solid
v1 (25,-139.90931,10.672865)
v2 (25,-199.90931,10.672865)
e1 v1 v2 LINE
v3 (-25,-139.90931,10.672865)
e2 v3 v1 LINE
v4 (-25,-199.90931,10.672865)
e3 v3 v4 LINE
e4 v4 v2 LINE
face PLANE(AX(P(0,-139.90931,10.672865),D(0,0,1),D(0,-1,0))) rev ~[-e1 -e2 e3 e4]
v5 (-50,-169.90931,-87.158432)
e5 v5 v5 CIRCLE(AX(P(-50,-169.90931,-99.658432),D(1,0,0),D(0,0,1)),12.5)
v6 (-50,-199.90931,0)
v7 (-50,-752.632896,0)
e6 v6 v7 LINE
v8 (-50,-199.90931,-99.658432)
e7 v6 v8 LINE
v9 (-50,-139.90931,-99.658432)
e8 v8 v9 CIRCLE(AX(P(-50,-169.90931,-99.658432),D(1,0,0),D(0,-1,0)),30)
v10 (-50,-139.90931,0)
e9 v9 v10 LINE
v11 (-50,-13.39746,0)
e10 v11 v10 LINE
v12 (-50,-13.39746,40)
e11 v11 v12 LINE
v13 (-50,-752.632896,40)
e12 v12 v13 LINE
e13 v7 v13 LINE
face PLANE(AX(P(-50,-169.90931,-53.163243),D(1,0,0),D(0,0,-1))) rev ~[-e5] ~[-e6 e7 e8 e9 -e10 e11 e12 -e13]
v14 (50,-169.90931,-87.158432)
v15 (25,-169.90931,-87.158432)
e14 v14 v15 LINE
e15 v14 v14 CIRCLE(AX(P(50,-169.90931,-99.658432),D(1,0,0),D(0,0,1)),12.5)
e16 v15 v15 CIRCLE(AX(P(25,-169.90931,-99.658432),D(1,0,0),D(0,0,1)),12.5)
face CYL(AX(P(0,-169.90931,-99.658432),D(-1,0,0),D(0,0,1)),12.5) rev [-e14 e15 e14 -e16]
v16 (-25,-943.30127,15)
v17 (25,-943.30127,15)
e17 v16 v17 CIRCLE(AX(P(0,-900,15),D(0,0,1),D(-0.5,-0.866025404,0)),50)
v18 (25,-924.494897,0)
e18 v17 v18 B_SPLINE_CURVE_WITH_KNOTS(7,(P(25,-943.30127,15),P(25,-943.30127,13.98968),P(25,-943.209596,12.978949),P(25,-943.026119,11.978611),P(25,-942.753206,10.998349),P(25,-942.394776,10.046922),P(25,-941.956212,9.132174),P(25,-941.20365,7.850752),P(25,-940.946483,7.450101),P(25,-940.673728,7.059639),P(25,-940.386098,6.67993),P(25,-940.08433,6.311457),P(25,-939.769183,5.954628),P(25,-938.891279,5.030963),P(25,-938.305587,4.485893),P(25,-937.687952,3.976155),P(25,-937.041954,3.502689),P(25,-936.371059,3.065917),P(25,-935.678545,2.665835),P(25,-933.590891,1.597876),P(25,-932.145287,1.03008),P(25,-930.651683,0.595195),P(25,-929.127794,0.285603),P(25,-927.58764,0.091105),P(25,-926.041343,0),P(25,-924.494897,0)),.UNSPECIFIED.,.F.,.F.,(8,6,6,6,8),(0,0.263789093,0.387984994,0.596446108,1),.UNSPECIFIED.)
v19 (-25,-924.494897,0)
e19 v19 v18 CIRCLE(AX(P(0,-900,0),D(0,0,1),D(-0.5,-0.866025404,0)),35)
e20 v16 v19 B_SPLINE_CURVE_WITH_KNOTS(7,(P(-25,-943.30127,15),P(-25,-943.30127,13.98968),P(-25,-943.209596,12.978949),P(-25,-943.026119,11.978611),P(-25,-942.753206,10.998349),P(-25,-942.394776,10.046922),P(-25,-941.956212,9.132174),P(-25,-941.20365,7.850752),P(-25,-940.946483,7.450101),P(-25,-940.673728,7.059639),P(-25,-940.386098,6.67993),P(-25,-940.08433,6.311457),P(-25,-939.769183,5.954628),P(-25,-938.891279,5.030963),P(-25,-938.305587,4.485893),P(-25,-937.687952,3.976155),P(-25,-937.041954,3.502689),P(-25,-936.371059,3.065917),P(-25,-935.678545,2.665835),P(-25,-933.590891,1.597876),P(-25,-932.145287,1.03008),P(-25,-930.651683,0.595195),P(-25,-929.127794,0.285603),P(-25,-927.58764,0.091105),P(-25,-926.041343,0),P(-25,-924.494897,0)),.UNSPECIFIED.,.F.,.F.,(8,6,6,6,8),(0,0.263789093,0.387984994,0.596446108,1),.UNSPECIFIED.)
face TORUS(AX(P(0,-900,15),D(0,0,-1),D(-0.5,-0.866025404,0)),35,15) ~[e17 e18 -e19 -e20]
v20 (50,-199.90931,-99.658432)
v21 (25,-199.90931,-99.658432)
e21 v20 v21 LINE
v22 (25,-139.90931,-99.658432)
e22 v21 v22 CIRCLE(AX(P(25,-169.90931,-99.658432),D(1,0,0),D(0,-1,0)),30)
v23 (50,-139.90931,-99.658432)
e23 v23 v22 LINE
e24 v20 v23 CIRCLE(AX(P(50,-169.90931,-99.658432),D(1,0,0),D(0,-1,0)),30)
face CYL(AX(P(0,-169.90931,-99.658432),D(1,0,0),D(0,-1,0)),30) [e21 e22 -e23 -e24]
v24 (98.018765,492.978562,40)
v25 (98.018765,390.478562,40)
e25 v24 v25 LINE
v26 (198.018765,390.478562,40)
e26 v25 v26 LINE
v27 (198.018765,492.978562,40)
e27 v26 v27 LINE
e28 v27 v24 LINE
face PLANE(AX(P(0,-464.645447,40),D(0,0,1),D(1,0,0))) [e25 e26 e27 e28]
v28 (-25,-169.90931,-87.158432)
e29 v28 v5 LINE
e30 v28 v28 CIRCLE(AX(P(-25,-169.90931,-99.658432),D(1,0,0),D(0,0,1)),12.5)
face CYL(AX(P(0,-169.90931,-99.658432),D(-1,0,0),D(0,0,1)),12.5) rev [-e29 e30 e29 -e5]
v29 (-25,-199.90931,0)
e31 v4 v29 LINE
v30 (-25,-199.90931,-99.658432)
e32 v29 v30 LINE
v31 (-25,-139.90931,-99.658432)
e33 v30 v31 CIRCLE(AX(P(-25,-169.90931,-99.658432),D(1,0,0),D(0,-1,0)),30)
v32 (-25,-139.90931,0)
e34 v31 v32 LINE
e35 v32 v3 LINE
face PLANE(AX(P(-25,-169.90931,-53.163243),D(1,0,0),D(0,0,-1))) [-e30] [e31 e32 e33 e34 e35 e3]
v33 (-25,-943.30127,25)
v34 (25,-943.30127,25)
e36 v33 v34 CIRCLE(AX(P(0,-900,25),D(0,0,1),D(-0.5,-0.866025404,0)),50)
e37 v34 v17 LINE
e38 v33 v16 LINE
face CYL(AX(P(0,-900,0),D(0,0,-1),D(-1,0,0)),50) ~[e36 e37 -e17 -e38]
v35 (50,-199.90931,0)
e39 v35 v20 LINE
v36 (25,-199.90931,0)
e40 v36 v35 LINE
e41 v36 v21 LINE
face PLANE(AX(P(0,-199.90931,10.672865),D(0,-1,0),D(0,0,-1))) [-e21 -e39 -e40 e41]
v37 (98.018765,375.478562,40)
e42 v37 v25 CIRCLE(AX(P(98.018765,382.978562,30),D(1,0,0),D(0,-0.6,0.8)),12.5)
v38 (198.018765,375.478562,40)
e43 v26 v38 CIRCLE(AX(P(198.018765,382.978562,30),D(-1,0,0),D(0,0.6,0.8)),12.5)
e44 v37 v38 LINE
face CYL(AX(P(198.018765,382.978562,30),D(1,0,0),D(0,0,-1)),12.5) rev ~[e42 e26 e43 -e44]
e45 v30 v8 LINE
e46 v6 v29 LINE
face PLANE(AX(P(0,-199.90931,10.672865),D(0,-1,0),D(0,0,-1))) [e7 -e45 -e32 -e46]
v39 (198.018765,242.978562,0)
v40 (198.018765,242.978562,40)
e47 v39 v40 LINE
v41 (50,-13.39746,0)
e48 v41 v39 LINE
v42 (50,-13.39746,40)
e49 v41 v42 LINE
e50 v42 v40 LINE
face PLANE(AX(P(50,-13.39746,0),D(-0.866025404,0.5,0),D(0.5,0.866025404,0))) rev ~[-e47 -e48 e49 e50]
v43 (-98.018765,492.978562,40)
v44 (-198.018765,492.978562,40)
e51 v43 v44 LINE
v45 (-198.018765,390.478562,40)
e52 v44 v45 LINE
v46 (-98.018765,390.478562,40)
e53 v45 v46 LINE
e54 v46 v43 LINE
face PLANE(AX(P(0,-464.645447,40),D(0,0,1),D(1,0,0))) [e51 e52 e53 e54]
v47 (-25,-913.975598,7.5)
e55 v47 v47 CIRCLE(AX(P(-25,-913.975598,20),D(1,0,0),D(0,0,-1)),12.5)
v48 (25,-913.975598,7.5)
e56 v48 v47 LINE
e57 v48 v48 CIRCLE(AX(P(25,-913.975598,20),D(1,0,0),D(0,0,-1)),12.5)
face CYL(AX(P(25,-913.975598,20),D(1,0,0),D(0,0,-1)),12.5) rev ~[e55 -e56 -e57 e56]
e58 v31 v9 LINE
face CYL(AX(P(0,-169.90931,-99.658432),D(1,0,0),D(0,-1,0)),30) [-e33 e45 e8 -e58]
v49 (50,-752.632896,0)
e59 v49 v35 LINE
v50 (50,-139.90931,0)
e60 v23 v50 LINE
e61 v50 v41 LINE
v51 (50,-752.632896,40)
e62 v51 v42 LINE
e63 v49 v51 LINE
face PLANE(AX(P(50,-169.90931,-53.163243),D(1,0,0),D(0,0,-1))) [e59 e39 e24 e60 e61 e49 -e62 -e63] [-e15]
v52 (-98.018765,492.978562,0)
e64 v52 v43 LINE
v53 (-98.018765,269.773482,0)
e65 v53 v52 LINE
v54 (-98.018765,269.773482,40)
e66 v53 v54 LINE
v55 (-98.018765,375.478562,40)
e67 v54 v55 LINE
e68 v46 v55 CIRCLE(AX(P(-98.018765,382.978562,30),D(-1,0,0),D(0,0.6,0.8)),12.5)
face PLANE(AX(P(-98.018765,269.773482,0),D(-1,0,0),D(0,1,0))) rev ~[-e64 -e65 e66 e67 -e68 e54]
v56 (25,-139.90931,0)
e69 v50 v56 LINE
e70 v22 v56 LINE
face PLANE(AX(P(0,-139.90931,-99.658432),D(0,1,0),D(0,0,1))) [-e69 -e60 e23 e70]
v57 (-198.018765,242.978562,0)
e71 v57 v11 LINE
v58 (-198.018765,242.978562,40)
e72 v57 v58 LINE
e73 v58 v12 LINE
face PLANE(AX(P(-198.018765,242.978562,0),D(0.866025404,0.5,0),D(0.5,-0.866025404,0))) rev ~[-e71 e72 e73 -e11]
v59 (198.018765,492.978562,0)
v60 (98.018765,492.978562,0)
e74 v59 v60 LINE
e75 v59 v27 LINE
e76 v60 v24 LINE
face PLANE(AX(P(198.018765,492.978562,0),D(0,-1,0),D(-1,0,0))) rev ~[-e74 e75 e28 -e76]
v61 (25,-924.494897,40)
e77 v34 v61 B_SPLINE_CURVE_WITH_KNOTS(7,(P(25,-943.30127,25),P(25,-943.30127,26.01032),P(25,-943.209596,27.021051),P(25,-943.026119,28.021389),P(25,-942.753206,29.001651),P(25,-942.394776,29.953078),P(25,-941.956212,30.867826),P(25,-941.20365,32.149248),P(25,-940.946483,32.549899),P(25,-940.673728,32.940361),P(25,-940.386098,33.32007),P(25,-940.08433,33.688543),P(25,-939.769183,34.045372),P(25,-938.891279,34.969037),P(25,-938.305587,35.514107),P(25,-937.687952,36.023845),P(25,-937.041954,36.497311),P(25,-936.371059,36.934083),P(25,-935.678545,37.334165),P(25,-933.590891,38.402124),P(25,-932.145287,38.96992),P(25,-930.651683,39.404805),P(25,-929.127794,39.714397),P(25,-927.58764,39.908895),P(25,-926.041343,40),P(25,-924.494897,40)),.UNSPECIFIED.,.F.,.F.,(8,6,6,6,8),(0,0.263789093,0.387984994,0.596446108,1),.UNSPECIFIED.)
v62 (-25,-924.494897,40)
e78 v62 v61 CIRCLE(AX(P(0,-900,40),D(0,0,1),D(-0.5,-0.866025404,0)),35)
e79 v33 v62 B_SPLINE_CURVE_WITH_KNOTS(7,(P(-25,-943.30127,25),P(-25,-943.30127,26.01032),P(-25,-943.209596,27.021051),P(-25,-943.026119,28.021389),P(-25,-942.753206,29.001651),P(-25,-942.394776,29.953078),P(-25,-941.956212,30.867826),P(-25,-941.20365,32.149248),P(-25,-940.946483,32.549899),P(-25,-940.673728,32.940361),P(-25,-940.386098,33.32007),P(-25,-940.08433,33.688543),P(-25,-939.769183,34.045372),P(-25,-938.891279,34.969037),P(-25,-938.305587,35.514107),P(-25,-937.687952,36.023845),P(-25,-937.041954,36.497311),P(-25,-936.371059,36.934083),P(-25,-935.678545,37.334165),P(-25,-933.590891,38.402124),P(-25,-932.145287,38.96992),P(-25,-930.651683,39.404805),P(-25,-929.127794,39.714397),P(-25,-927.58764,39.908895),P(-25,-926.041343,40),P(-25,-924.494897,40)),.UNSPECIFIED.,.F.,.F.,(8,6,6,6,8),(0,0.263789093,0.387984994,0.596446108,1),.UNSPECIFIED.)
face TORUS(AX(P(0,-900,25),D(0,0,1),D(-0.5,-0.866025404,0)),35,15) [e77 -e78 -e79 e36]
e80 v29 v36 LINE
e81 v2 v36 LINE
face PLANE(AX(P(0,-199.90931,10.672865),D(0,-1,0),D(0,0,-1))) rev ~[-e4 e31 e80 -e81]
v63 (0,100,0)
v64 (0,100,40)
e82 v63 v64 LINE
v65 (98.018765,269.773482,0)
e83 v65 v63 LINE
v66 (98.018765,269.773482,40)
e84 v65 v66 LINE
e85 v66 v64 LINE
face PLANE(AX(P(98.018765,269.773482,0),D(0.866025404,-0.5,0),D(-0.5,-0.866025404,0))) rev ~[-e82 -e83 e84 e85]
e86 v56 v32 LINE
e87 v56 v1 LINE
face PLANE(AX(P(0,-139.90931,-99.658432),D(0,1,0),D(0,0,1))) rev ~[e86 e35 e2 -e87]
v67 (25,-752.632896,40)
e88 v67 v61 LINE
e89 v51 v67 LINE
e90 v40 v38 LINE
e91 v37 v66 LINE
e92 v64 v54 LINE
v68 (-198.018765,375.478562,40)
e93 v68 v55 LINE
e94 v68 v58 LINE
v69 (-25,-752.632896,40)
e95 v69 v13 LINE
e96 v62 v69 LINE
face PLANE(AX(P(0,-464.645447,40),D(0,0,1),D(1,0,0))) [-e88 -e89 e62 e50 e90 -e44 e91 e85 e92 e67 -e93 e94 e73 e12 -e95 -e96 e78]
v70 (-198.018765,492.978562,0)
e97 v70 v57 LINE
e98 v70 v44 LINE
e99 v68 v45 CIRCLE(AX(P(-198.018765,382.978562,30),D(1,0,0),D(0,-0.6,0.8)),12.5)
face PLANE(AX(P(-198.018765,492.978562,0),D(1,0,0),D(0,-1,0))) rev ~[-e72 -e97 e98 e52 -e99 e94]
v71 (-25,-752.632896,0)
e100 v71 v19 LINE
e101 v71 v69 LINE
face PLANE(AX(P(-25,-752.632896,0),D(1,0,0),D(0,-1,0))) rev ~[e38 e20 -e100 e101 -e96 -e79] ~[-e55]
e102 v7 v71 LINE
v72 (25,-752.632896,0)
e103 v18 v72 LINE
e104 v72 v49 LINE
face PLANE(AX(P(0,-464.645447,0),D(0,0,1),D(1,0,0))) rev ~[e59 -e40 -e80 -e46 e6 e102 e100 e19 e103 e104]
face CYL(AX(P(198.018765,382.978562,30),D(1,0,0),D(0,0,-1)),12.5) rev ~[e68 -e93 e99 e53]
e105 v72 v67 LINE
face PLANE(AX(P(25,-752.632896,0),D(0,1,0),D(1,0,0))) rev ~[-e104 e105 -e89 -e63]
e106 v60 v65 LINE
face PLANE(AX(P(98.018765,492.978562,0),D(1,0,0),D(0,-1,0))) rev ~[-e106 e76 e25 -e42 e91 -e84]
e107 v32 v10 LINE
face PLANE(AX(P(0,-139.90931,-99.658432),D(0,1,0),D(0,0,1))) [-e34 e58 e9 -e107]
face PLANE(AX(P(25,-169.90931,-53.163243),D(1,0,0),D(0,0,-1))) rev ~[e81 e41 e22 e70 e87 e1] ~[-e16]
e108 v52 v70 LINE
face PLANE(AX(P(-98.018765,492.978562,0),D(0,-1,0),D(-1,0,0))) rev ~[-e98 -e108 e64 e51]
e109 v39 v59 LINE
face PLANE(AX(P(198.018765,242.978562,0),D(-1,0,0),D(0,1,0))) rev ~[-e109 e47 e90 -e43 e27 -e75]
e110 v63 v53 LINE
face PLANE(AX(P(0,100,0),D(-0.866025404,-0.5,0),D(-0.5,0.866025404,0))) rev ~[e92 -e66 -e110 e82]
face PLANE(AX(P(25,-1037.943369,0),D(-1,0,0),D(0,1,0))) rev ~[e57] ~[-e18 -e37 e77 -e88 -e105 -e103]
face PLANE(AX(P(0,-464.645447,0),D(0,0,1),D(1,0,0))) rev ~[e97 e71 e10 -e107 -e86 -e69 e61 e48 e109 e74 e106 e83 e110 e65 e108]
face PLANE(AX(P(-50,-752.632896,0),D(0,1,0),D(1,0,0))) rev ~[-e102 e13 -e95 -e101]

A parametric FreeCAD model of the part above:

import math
import FreeCAD as App
import Part
import Sketcher
from FreeCAD import Vector
Q = App.Units.Quantity


def edges_at(feature, points):
    """Names of the edges that pass closest to the given points."""
    edges = feature.Shape.Edges
    near = lambda p: min(range(len(edges)), key=lambda i: edges[i].distToShape(Part.Vertex(*p))[0])
    return sorted({f"Edge{near(p) + 1}" for p in points})

doc = App.newDocument("Part")
params = doc.addObject("Spreadsheet::Sheet", "Params")
for row, (alias, value) in enumerate([
    ("sketch1_radius", "50 mm"),
    ("sketch1_width", "100 mm"),
    ("sketch1_height", "250 mm"),
    ("pad1_length", "40 mm"),
    ("sketch2_width", "25 mm"),
    ("sketch3_diameter", "25 mm"),
    ("pocket2_length", "50 mm"),
    ("fillet_radius", "15 mm"),
    ("sketch4_diameter", "25 mm"),
    ("sketch4_radius", "30 mm"),
    ("pad2_length", "100 mm"),
    ("sketch5_diameter", "25 mm"),
    ("sketch5_radius", "30 mm"),
    ("pocket3_length", "50 mm"),
    ("sketch6_diameter", "25 mm"),
], start=1):
    params.set(f"A{row}", alias)
    params.set(f"B{row}", "=" + value)
    params.setAlias(f"B{row}", alias)

body = doc.addObject("PartDesign::Body", "Body")

sketch1 = body.newObject("Sketcher::SketchObject", "Sketch")
sketch1.AttachmentSupport = (doc.getObject("XY_Plane"), [""])
sketch1.MapMode = "FlatFace"
sketch1.addGeometry([
    Part.ArcOfCircle(Part.Circle(Vector(0, -900, 0), Vector(0, 0, 1), 50), math.radians(180), math.radians(360)),
    Part.LineSegment(Vector(50, -900, 0), Vector(50, -13, 0)),
    Part.LineSegment(Vector(50, -13, 0), Vector(198, 243, 0)),
    Part.LineSegment(Vector(198, 243, 0), Vector(198, 493, 0)),
    Part.LineSegment(Vector(198, 493, 0), Vector(98, 493, 0)),
    Part.LineSegment(Vector(98, 493, 0), Vector(98, 270, 0)),
    Part.LineSegment(Vector(98, 270, 0), Vector(0, 100, 0)),
    Part.LineSegment(Vector(0, 100, 0), Vector(-98, 270, 0)),
    Part.LineSegment(Vector(-98, 270, 0), Vector(-98, 493, 0)),
    Part.LineSegment(Vector(-98, 493, 0), Vector(-198, 493, 0)),
    Part.LineSegment(Vector(-198, 493, 0), Vector(-198, 243, 0)),
    Part.LineSegment(Vector(-198, 243, 0), Vector(-50, -13, 0)),
    Part.LineSegment(Vector(-50, -13, 0), Vector(-50, -900, 0)),
], False)
sketch1.addConstraint([
    Sketcher.Constraint("Tangent", 0, 2, 1, 1),
    Sketcher.Constraint("Coincident", 1, 2, 2, 1),
    Sketcher.Constraint("Coincident", 2, 2, 3, 1),
    Sketcher.Constraint("Coincident", 3, 2, 4, 1),
    Sketcher.Constraint("Coincident", 4, 2, 5, 1),
    Sketcher.Constraint("Coincident", 5, 2, 6, 1),
    Sketcher.Constraint("Coincident", 6, 2, 7, 1),
    Sketcher.Constraint("Coincident", 7, 2, 8, 1),
    Sketcher.Constraint("Coincident", 8, 2, 9, 1),
    Sketcher.Constraint("Coincident", 9, 2, 10, 1),
    Sketcher.Constraint("Coincident", 10, 2, 11, 1),
    Sketcher.Constraint("Coincident", 11, 2, 12, 1),
    Sketcher.Constraint("Tangent", 12, 2, 0, 1),
    Sketcher.Constraint("Vertical", 1),
    Sketcher.Constraint("Vertical", 3),
    Sketcher.Constraint("Horizontal", 4),
    Sketcher.Constraint("Vertical", 5),
    Sketcher.Constraint("Vertical", 8),
    Sketcher.Constraint("Horizontal", 9),
    Sketcher.Constraint("Vertical", 10),
    Sketcher.Constraint("Vertical", 12),
    Sketcher.Constraint("Symmetric", 5, 2, 7, 2, -2),
    Sketcher.Constraint("Symmetric", 3, 2, 9, 2, -2),
    Sketcher.Constraint("Symmetric", 1, 2, 11, 2, -2),
    Sketcher.Constraint("PointOnObject", 6, 2, -2),
    Sketcher.Constraint("Parallel", 2, 6),
    Sketcher.Constraint("Parallel", 7, 11),
    Sketcher.Constraint("Radius", 0, Q("50 mm")),
    Sketcher.Constraint("DistanceX", 4, 2, 4, 1, Q("100 mm")),
    Sketcher.Constraint("DistanceY", 3, 1, 3, 2, Q("250 mm")),
    Sketcher.Constraint("Angle", 2, Q("60 deg")),
    Sketcher.Constraint("DistanceY", 0, 3, -1, 1, Q("900 mm")),
    Sketcher.Constraint("DistanceY", -1, 1, 6, 2, Q("100 mm")),
    Sketcher.Constraint("DistanceY", 1, 1, 1, 2, Q("886.60254 mm")),
    Sketcher.Constraint("Distance", 2, Q("296.037531 mm")),
])
sketch1.setExpression("Constraints[27]", "Params.sketch1_radius")
sketch1.setExpression("Constraints[28]", "Params.sketch1_width")
sketch1.setExpression("Constraints[29]", "Params.sketch1_height")
pad1 = body.newObject("PartDesign::Pad", "Pad")
pad1.Profile = sketch1
pad1.setExpression("Length", "Params.pad1_length")

sketch2 = body.newObject("Sketcher::SketchObject", "Sketch001")
sketch2.AttachmentSupport = (doc.getObject("XY_Plane"), [""])
sketch2.MapMode = "FlatFace"
sketch2.addGeometry([
    Part.LineSegment(Vector(-25, -1038, 0), Vector(-50, -1038, 0)),
    Part.LineSegment(Vector(-50, -1038, 0), Vector(-50, -753, 0)),
    Part.LineSegment(Vector(-50, -753, 0), Vector(-25, -753, 0)),
    Part.LineSegment(Vector(-25, -753, 0), Vector(-25, -1038, 0)),
    Part.LineSegment(Vector(50, -1038, 0), Vector(25, -1038, 0)),
    Part.LineSegment(Vector(25, -1038, 0), Vector(25, -753, 0)),
    Part.LineSegment(Vector(25, -753, 0), Vector(50, -753, 0)),
    Part.LineSegment(Vector(50, -753, 0), Vector(50, -1038, 0)),
], False)
sketch2.addConstraint([
    Sketcher.Constraint("Coincident", 0, 2, 1, 1),
    Sketcher.Constraint("Coincident", 1, 2, 2, 1),
    Sketcher.Constraint("Coincident", 2, 2, 3, 1),
    Sketcher.Constraint("Coincident", 3, 2, 0, 1),
    Sketcher.Constraint("Coincident", 4, 2, 5, 1),
    Sketcher.Constraint("Coincident", 5, 2, 6, 1),
    Sketcher.Constraint("Coincident", 6, 2, 7, 1),
    Sketcher.Constraint("Coincident", 7, 2, 4, 1),
    Sketcher.Constraint("Horizontal", 0),
    Sketcher.Constraint("Vertical", 1),
    Sketcher.Constraint("Horizontal", 2),
    Sketcher.Constraint("Vertical", 3),
    Sketcher.Constraint("Horizontal", 4),
    Sketcher.Constraint("Vertical", 5),
    Sketcher.Constraint("Horizontal", 6),
    Sketcher.Constraint("Vertical", 7),
    Sketcher.Constraint("Symmetric", 3, 2, 4, 2, -2),
    Sketcher.Constraint("Symmetric", 1, 2, 6, 2, -2),
    Sketcher.Constraint("DistanceX", 0, 2, 0, 1, Q("25 mm")),
    Sketcher.Constraint("DistanceX", 0, 2, -1, 1, Q("50 mm")),
    Sketcher.Constraint("DistanceY", 1, 1, 1, 2, Q("285.310473 mm")),
    Sketcher.Constraint("DistanceY", 0, 2, -1, 1, Q("1037.943369 mm")),
])
sketch2.setExpression("Constraints[18]", "Params.sketch2_width")
pocket1 = body.newObject("PartDesign::Pocket", "Pocket")
pocket1.Profile = sketch2
pocket1.Type = "ThroughAll"
pocket1.Reversed = True

sketch3 = body.newObject("Sketcher::SketchObject", "Sketch002")
sketch3.AttachmentSupport = (doc.getObject("YZ_Plane"), [""])
sketch3.MapMode = "FlatFace"
sketch3.AttachmentOffset = App.Placement(Vector(0, 0, 25), App.Rotation())
sketch3.addGeometry(Part.Circle(Vector(-914, 20, 0), Vector(0, 0, 1), 12), False)
sketch3.addConstraint([
    Sketcher.Constraint("Diameter", 0, Q("25 mm")),
    Sketcher.Constraint("DistanceY", -1, 1, 0, 3, Q("20 mm")),
    Sketcher.Constraint("DistanceX", 0, 3, -1, 1, Q("913.975598 mm")),
])
sketch3.setExpression("Constraints[0]", "Params.sketch3_diameter")
pocket2 = body.newObject("PartDesign::Pocket", "Pocket001")
pocket2.Profile = sketch3
pocket2.setExpression("Length", "Params.pocket2_length")
doc.recompute()

fillet = body.newObject("PartDesign::Fillet", "Fillet")
fillet.Base = (pocket2, edges_at(pocket2, [(0, -950, 0), (0, -950, 40)]))
fillet.setExpression("Radius", "Params.fillet_radius")

sketch4 = body.newObject("Sketcher::SketchObject", "Sketch003")
sketch4.AttachmentSupport = (doc.getObject("YZ_Plane"), [""])
sketch4.MapMode = "FlatFace"
sketch4.addGeometry([
    Part.LineSegment(Vector(-140, -100, 0), Vector(-140, 11, 0)),
    Part.LineSegment(Vector(-140, 11, 0), Vector(-200, 11, 0)),
    Part.LineSegment(Vector(-200, 11, 0), Vector(-200, -100, 0)),
    Part.ArcOfCircle(Part.Circle(Vector(-170, -100, 0), Vector(0, 0, 1), 30), math.radians(180), math.radians(360)),
    Part.Circle(Vector(-170, -100, 0), Vector(0, 0, 1), 12),
], False)
sketch4.addConstraint([
    Sketcher.Constraint("Coincident", 0, 2, 1, 1),
    Sketcher.Constraint("Coincident", 1, 2, 2, 1),
    Sketcher.Constraint("Tangent", 2, 2, 3, 1),
    Sketcher.Constraint("Tangent", 3, 2, 0, 1),
    Sketcher.Constraint("Vertical", 0),
    Sketcher.Constraint("Horizontal", 1),
    Sketcher.Constraint("Vertical", 2),
    Sketcher.Constraint("Coincident", 4, 3, 3, 3),
    Sketcher.Constraint("Diameter", 4, Q("25 mm")),
    Sketcher.Constraint("Radius", 3, Q("30 mm")),
    Sketcher.Constraint("DistanceY", 0, 1, 0, 2, Q("110.331297 mm")),
    Sketcher.Constraint("DistanceX", 3, 3, -1, 1, Q("169.90931 mm")),
    Sketcher.Constraint("DistanceY", 3, 3, -1, 1, Q("99.658432 mm")),
])
sketch4.setExpression("Constraints[8]", "Params.sketch4_diameter")
sketch4.setExpression("Constraints[9]", "Params.sketch4_radius")
pad2 = body.newObject("PartDesign::Pad", "Pad001")
pad2.Profile = sketch4
pad2.setExpression("Length", "Params.pad2_length")
pad2.Midplane = True

sketch5 = body.newObject("Sketcher::SketchObject", "Sketch004")
sketch5.AttachmentSupport = (doc.getObject("YZ_Plane"), [""])
sketch5.MapMode = "FlatFace"
sketch5.addGeometry([
    Part.LineSegment(Vector(-140, -100, 0), Vector(-140, 11, 0)),
    Part.LineSegment(Vector(-140, 11, 0), Vector(-200, 11, 0)),
    Part.LineSegment(Vector(-200, 11, 0), Vector(-200, -100, 0)),
    Part.ArcOfCircle(Part.Circle(Vector(-170, -100, 0), Vector(0, 0, 1), 30), math.radians(180), math.radians(360)),
    Part.Circle(Vector(-170, -100, 0), Vector(0, 0, 1), 12),
], False)
sketch5.addConstraint([
    Sketcher.Constraint("Coincident", 0, 2, 1, 1),
    Sketcher.Constraint("Coincident", 1, 2, 2, 1),
    Sketcher.Constraint("Tangent", 2, 2, 3, 1),
    Sketcher.Constraint("Tangent", 3, 2, 0, 1),
    Sketcher.Constraint("Vertical", 0),
    Sketcher.Constraint("Horizontal", 1),
    Sketcher.Constraint("Vertical", 2),
    Sketcher.Constraint("Coincident", 4, 3, 3, 3),
    Sketcher.Constraint("Diameter", 4, Q("25 mm")),
    Sketcher.Constraint("Radius", 3, Q("30 mm")),
    Sketcher.Constraint("DistanceY", 0, 1, 0, 2, Q("110.331297 mm")),
    Sketcher.Constraint("DistanceX", 3, 3, -1, 1, Q("169.90931 mm")),
    Sketcher.Constraint("DistanceY", 3, 3, -1, 1, Q("99.658432 mm")),
])
sketch5.setExpression("Constraints[8]", "Params.sketch5_diameter")
sketch5.setExpression("Constraints[9]", "Params.sketch5_radius")
pocket3 = body.newObject("PartDesign::Pocket", "Pocket002")
pocket3.Profile = sketch5
pocket3.setExpression("Length", "Params.pocket3_length")
pocket3.Midplane = True

sketch6 = body.newObject("Sketcher::SketchObject", "Sketch005")
sketch6.AttachmentSupport = (doc.getObject("YZ_Plane"), [""])
sketch6.MapMode = "FlatFace"
sketch6.AttachmentOffset = App.Placement(Vector(0, 0, 198.018765), App.Rotation())
sketch6.addGeometry(Part.Circle(Vector(383, 30, 0), Vector(0, 0, 1), 12), False)
sketch6.addConstraint([
    Sketcher.Constraint("Diameter", 0, Q("25 mm")),
    Sketcher.Constraint("DistanceY", -1, 1, 0, 3, Q("30 mm")),
    Sketcher.Constraint("DistanceX", -1, 1, 0, 3, Q("382.978562 mm")),
])
sketch6.setExpression("Constraints[0]", "Params.sketch6_diameter")
pocket4 = body.newObject("PartDesign::Pocket", "Pocket003")
pocket4.Profile = sketch6
pocket4.Type = "ThroughAll"

doc.recompute()
